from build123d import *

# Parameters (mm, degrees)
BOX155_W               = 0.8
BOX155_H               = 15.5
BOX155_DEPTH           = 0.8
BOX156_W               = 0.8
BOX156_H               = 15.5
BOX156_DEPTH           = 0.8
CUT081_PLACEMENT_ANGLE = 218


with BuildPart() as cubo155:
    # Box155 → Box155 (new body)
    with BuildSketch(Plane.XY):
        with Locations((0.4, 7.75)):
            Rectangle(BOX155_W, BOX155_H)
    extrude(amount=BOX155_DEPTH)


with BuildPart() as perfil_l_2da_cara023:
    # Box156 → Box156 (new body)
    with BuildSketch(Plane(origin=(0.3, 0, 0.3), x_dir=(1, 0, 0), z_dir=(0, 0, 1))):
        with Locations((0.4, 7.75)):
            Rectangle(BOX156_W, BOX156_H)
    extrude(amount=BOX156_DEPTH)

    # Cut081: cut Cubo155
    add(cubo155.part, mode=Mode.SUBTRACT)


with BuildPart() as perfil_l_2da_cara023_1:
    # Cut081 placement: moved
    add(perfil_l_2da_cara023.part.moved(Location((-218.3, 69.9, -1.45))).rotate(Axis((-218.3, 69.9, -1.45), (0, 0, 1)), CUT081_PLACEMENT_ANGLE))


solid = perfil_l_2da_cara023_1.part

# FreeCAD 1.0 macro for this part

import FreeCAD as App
import Part
import Sketcher
from FreeCAD import Vector
Q = App.Units.Quantity

doc = App.newDocument("Part")
body = doc.addObject("PartDesign::Body", "Body")

# Sketch on XY plane
sketch1 = doc.addObject("Sketcher::SketchObject", "Sketch")
body.addObject(sketch1)
sketch1.AttachmentSupport = (doc.XY_Plane, [""])
sketch1.MapMode = "FlatFace"
sketch1.addGeometry([
    Part.LineSegment(Vector(0, 15.5, 0), Vector(0, 0, 0)),
    Part.LineSegment(Vector(0, 0, 0), Vector(0.8, 0, 0)),
    Part.LineSegment(Vector(0.8, 0, 0), Vector(0.8, 15.5, 0)),
    Part.LineSegment(Vector(0.8, 15.5, 0), Vector(0, 15.5, 0)),
], False)
sketch1.addConstraint([
    Sketcher.Constraint("Coincident", 0, 2, 1, 1),
    Sketcher.Constraint("Coincident", 1, 2, 2, 1),
    Sketcher.Constraint("Coincident", 2, 2, 3, 1),
    Sketcher.Constraint("Coincident", 3, 2, 0, 1),
    Sketcher.Constraint("Vertical", 0),
    Sketcher.Constraint("Horizontal", 1),
    Sketcher.Constraint("Vertical", 2),
    Sketcher.Constraint("Horizontal", 3),
    Sketcher.Constraint("Coincident", 0, 2, -1, 1),
    Sketcher.Constraint("DistanceX", 1, 1, 1, 2, Q("0.8 mm")),
    Sketcher.Constraint("DistanceY", 0, 2, 0, 1, Q("15.5 mm")),
])
pad1 = doc.addObject("PartDesign::Pad", "Pad")
body.addObject(pad1)
pad1.Profile = sketch1
pad1.Length = 0.8
body2 = doc.addObject("PartDesign::Body", "Body001")

# Sketch on XY plane
sketch2 = doc.addObject("Sketcher::SketchObject", "Sketch001")
body2.addObject(sketch2)
sketch2.AttachmentSupport = (doc.getObject("XY_Plane001"), [""])
sketch2.MapMode = "FlatFace"
sketch2.AttachmentOffset = App.Placement(Vector(0, 0, 0.3), App.Rotation())
sketch2.addGeometry([
    Part.LineSegment(Vector(0.3, 15.5, 0), Vector(0.3, 0, 0)),
    Part.LineSegment(Vector(0.3, 0, 0), Vector(1.1, 0, 0)),
    Part.LineSegment(Vector(1.1, 0, 0), Vector(1.1, 15.5, 0)),
    Part.LineSegment(Vector(1.1, 15.5, 0), Vector(0.3, 15.5, 0)),
], False)
sketch2.addConstraint([
    Sketcher.Constraint("Coincident", 0, 2, 1, 1),
    Sketcher.Constraint("Coincident", 1, 2, 2, 1),
    Sketcher.Constraint("Coincident", 2, 2, 3, 1),
    Sketcher.Constraint("Coincident", 3, 2, 0, 1),
    Sketcher.Constraint("Vertical", 0),
    Sketcher.Constraint("Horizontal", 1),
    Sketcher.Constraint("Vertical", 2),
    Sketcher.Constraint("Horizontal", 3),
    Sketcher.Constraint("PointOnObject", 0, 2, -1),
    Sketcher.Constraint("DistanceX", 1, 1, 1, 2, Q("0.8 mm")),
    Sketcher.Constraint("DistanceY", 0, 2, 0, 1, Q("15.5 mm")),
    Sketcher.Constraint("DistanceX", -1, 1, 0, 2, Q("0.3 mm")),
])
pad2 = doc.addObject("PartDesign::Pad", "Pad001")
body2.addObject(pad2)
pad2.Profile = sketch2
pad2.Length = 0.8
doc.recompute()

boolean = doc.addObject("PartDesign::Boolean", "Boolean")
body2.addObject(boolean)
boolean.Type = "Cut"
boolean.addObjects([body])
body3 = doc.addObject("PartDesign::Body", "Body002")
doc.recompute()

body2.Placement = App.Placement(Vector(-218.3, 69.9, -1.45), App.Rotation(Vector(0, 0, 1), 218))
boolean2 = doc.addObject("PartDesign::Boolean", "Boolean001")
body3.addObject(boolean2)
boolean2.Type = "Fuse"
boolean2.addObjects([body2])

doc.recompute()
